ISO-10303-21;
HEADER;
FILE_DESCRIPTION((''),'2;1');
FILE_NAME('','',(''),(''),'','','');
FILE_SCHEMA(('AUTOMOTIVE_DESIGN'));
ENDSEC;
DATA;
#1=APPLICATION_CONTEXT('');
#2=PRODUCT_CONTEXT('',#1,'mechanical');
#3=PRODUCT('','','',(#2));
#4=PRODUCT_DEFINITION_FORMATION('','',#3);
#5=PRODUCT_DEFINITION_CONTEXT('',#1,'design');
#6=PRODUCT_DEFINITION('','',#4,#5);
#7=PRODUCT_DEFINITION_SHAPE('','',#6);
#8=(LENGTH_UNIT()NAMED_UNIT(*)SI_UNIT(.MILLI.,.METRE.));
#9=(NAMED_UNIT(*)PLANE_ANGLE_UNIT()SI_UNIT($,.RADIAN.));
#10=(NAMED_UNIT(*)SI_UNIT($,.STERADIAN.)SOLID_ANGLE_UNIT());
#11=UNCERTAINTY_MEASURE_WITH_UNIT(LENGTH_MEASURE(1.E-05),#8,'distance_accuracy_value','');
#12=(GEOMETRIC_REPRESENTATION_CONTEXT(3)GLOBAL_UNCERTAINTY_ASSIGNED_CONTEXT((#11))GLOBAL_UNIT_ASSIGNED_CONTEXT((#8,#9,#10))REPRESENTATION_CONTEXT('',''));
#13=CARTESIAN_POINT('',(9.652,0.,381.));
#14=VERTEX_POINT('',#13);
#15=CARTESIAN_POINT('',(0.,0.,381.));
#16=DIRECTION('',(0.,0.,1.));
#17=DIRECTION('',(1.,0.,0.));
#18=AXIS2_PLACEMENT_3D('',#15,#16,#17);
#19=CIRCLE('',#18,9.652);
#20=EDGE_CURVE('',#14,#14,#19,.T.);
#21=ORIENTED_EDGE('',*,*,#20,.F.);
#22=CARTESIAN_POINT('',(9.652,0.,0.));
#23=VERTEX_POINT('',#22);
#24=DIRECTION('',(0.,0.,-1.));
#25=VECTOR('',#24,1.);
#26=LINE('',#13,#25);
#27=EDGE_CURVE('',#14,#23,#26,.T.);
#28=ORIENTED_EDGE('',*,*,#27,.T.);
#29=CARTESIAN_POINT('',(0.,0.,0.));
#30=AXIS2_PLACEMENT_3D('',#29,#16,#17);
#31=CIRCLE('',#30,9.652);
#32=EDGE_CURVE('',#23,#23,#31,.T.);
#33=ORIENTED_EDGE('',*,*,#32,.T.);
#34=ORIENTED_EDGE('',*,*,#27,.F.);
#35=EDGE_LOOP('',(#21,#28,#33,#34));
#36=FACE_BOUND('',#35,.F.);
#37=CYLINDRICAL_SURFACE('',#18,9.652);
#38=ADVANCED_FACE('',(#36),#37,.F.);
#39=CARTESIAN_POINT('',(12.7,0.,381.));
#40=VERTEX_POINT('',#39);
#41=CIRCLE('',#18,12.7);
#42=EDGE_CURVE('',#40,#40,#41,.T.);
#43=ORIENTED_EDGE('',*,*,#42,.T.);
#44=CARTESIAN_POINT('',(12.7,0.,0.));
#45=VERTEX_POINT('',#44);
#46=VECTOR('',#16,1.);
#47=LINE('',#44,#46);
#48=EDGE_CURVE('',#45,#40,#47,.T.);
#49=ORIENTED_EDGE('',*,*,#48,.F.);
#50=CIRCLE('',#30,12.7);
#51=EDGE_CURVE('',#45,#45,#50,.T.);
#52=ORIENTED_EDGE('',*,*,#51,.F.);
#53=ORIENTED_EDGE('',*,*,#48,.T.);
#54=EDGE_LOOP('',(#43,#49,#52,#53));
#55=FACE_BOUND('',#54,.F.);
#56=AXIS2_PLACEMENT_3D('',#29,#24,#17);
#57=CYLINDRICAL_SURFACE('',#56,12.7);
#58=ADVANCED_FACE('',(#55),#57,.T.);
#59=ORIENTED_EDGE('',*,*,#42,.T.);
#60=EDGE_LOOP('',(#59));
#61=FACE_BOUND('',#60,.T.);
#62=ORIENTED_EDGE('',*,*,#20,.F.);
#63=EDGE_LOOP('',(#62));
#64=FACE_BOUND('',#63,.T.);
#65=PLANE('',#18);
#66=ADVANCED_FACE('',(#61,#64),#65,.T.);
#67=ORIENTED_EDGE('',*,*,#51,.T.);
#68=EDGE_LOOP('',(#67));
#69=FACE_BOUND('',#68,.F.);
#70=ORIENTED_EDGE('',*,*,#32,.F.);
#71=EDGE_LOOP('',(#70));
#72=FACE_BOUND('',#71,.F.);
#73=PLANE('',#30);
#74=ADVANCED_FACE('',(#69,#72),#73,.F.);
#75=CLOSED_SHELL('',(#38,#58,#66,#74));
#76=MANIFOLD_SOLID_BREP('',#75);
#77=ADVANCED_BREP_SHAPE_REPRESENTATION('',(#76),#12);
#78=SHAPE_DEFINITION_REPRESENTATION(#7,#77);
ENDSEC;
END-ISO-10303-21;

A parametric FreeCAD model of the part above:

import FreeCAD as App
import Part
import Sketcher

V = App.Vector
Q = App.Units.Quantity

doc = App.newDocument("Part")
body = doc.addObject("PartDesign::Body", "Body")

# Sketch on XY plane
sketch1 = doc.addObject("Sketcher::SketchObject", "Sketch")
body.addObject(sketch1)
sketch1.AttachmentSupport = (doc.XY_Plane, [""])
sketch1.MapMode = "FlatFace"
sketch1.addGeometry(Part.Circle(V(0, 0, 0), V(0, 0, 1), 13), False)
sketch1.addConstraint([
    Sketcher.Constraint("Coincident", 0, 3, -1, 1),
    Sketcher.Constraint("Diameter", 0, Q("1 in")),
])
pad1 = doc.addObject("PartDesign::Pad", "Pad")
body.addObject(pad1)
pad1.Profile = sketch1
pad1.Length = Q("15 in")

# Sketch on XY plane
sketch2 = doc.addObject("Sketcher::SketchObject", "Sketch001")
body.addObject(sketch2)
sketch2.AttachmentSupport = (doc.XY_Plane, [""])
sketch2.MapMode = "FlatFace"
sketch2.AttachmentOffset = App.Placement(V(0, 0, 15 * 25.4), App.Rotation())
sketch2.addGeometry(Part.Circle(V(0, 0, 0), V(0, 0, 1), 10), False)
sketch2.addConstraint([
    Sketcher.Constraint("Coincident", 0, 3, -1, 1),
    Sketcher.Constraint("Diameter", 0, Q("0.76 in")),
])
pocket1 = doc.addObject("PartDesign::Pocket", "Pocket")
body.addObject(pocket1)
pocket1.Profile = sketch2
pocket1.Length = Q("15 in")

doc.recompute()
